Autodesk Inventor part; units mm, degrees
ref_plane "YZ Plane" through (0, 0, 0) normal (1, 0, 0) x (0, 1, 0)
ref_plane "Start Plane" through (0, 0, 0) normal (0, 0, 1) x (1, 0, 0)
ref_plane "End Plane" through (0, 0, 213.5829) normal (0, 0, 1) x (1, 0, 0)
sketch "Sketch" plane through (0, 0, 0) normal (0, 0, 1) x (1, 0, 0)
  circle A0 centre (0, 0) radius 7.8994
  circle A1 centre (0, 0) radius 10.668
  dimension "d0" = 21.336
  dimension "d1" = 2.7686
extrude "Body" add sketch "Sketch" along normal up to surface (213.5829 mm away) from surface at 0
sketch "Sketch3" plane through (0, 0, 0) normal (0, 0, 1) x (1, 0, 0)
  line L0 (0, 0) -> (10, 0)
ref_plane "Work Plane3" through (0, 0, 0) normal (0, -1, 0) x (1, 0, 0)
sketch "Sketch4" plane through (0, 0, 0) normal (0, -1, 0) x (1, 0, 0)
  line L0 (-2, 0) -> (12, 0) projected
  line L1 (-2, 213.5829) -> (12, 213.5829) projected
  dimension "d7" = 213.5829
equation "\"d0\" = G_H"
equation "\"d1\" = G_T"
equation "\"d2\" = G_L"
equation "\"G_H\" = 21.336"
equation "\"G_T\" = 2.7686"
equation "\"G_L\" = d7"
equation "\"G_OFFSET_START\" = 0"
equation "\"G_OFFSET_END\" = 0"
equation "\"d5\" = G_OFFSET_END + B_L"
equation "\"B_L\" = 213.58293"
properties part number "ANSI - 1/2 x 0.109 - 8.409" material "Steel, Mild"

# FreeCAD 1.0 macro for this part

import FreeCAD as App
import Part
import Sketcher
from FreeCAD import Vector
Q = App.Units.Quantity

doc = App.newDocument("Part")
body = doc.addObject("PartDesign::Body", "Body")

# Sketch on XY plane
sketch1 = doc.addObject("Sketcher::SketchObject", "Sketch")
body.addObject(sketch1)
sketch1.AttachmentSupport = (doc.XY_Plane, [""])
sketch1.MapMode = "FlatFace"
sketch1.addGeometry(Part.Circle(Vector(0, 0, 0), Vector(0, 0, 1), 11), False)
sketch1.addGeometry(Part.Circle(Vector(0, 0, 0), Vector(0, 0, 1), 8), False)
sketch1.addConstraint(Sketcher.Constraint("Coincident", 0, 3, -1, 1))
sketch1.addConstraint(Sketcher.Constraint("Coincident", 1, 3, -1, 1))
sketch1.addConstraint(Sketcher.Constraint("Diameter", 0, Q("0.84 in")))
sketch1.addConstraint(Sketcher.Constraint("Diameter", 1, Q("0.622 in")))
pad1 = doc.addObject("PartDesign::Pad", "Pad")
body.addObject(pad1)
pad1.Profile = sketch1
pad1.Length = 213.5829

doc.recompute()
